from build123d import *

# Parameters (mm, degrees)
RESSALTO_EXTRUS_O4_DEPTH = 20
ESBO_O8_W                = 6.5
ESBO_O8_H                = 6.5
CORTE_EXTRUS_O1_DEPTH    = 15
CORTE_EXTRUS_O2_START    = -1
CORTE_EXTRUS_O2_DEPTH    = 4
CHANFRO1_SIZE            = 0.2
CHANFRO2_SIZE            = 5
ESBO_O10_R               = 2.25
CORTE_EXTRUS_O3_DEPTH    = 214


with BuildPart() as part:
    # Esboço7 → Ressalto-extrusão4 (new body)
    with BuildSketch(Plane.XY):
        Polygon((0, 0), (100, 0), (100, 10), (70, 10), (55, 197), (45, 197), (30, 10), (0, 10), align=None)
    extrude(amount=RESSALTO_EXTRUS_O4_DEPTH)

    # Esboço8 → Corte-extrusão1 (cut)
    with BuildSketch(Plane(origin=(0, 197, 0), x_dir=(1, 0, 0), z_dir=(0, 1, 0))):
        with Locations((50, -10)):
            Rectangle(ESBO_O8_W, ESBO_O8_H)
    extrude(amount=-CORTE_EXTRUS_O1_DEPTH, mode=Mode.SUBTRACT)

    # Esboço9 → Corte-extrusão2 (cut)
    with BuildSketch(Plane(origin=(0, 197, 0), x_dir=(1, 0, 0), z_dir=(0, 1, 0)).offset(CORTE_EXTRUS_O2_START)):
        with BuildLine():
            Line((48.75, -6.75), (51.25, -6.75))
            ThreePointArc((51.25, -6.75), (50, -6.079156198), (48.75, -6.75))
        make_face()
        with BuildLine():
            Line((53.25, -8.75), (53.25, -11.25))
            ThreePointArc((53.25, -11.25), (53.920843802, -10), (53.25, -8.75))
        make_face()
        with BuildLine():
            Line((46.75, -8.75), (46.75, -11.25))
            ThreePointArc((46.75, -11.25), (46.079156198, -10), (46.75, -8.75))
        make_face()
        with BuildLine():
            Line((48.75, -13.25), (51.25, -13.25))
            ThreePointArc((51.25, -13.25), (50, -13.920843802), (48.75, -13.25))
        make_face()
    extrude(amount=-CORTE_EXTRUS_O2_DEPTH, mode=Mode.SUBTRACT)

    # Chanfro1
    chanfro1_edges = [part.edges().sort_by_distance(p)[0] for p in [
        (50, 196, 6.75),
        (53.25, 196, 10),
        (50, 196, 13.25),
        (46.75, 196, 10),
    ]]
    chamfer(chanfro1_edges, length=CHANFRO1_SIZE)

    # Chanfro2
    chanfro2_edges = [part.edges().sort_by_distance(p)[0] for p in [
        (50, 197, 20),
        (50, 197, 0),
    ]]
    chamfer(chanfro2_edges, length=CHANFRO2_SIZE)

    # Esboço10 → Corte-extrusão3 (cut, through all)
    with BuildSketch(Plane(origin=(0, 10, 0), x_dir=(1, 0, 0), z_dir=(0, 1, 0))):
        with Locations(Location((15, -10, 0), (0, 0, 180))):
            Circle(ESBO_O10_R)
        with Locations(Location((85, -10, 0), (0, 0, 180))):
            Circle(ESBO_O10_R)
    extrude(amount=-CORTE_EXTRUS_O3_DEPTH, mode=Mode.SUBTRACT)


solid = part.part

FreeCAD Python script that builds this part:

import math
import FreeCAD as App
import Part
import Sketcher
from FreeCAD import Vector


def edges_at(feature, points):
    """Names of the edges that pass closest to the given points."""
    edges = feature.Shape.Edges
    near = lambda p: min(range(len(edges)), key=lambda i: edges[i].distToShape(Part.Vertex(*p))[0])
    return sorted({f"Edge{near(p) + 1}" for p in points})

doc = App.newDocument("Part")
body = doc.addObject("PartDesign::Body", "Body")

# Sketch on XY plane
sketch1 = doc.addObject("Sketcher::SketchObject", "Sketch")
body.addObject(sketch1)
sketch1.AttachmentSupport = (doc.XY_Plane, [""])
sketch1.MapMode = "FlatFace"
sketch1.addGeometry([
    Part.LineSegment(Vector(0, 0, 0), Vector(100, 0, 0)),  # 0
    Part.LineSegment(Vector(100, 0, 0), Vector(100, 10, 0)),  # 1
    Part.LineSegment(Vector(100, 10, 0), Vector(70, 10, 0)),  # 2
    Part.LineSegment(Vector(70, 10, 0), Vector(55, 197, 0)),  # 3
    Part.LineSegment(Vector(55, 197, 0), Vector(45, 197, 0)),  # 4
    Part.LineSegment(Vector(45, 197, 0), Vector(30, 10, 0)),  # 5
    Part.LineSegment(Vector(30, 10, 0), Vector(0, 10, 0)),  # 6
    Part.LineSegment(Vector(0, 10, 0), Vector(0, 0, 0)),  # 7
], False)
sketch1.addConstraint([
    Sketcher.Constraint("Coincident", 0, 2, 1, 1),
    Sketcher.Constraint("Coincident", 1, 2, 2, 1),
    Sketcher.Constraint("Coincident", 2, 2, 3, 1),
    Sketcher.Constraint("Coincident", 3, 2, 4, 1),
    Sketcher.Constraint("Coincident", 4, 2, 5, 1),
    Sketcher.Constraint("Coincident", 5, 2, 6, 1),
    Sketcher.Constraint("Coincident", 6, 2, 7, 1),
    Sketcher.Constraint("Coincident", 7, 2, 0, 1),
    Sketcher.Constraint("Horizontal", 0),
    Sketcher.Constraint("Vertical", 1),
    Sketcher.Constraint("Horizontal", 2),
    Sketcher.Constraint("Horizontal", 4),
    Sketcher.Constraint("Horizontal", 6),
    Sketcher.Constraint("Vertical", 7),
    Sketcher.Constraint("Coincident", 7, 2, -1, 1),
    Sketcher.Constraint("Horizontal", 2, 2, 5, 2),
    Sketcher.Constraint("Equal", 2, 6),
    Sketcher.Constraint("Equal", 4, 1),
    Sketcher.Constraint("Equal", 3, 5),
    Sketcher.Constraint("DistanceX", 0, 1, 0, 2, 100.0),
    Sketcher.Constraint("DistanceX", 2, 2, 2, 1, 30.0),
    Sketcher.Constraint("DistanceX", 4, 2, 4, 1, 10.0),
    Sketcher.Constraint("DistanceY", -1, 1, 3, 2, 197.0),
])
pad1 = doc.addObject("PartDesign::Pad", "Pad")
body.addObject(pad1)
pad1.Profile = sketch1
pad1.Length = 20

# Sketch on XZ plane
sketch2 = doc.addObject("Sketcher::SketchObject", "Sketch001")
body.addObject(sketch2)
sketch2.AttachmentSupport = (doc.XZ_Plane, [""])
sketch2.MapMode = "FlatFace"
sketch2.AttachmentOffset = App.Placement(Vector(0, 0, -197), App.Rotation())
sketch2.addGeometry([
    Part.LineSegment(Vector(47, 7, 0), Vector(47, 13, 0)),
    Part.LineSegment(Vector(47, 13, 0), Vector(53, 13, 0)),
    Part.LineSegment(Vector(53, 13, 0), Vector(53, 7, 0)),
    Part.LineSegment(Vector(53, 7, 0), Vector(47, 7, 0)),
], False)
sketch2.addConstraint([
    Sketcher.Constraint("Coincident", 0, 2, 1, 1),
    Sketcher.Constraint("Coincident", 1, 2, 2, 1),
    Sketcher.Constraint("Coincident", 2, 2, 3, 1),
    Sketcher.Constraint("Coincident", 3, 2, 0, 1),
    Sketcher.Constraint("Vertical", 0),
    Sketcher.Constraint("Horizontal", 1),
    Sketcher.Constraint("Vertical", 2),
    Sketcher.Constraint("Horizontal", 3),
    Sketcher.Constraint("Equal", 3, 0),
    Sketcher.Constraint("DistanceX", 1, 1, 1, 2, 6.5),
    Sketcher.Constraint("DistanceX", -1, 1, 0, 2, 46.75),
    Sketcher.Constraint("DistanceY", -1, 1, 0, 2, 13.25),
])
pocket1 = doc.addObject("PartDesign::Pocket", "Pocket")
body.addObject(pocket1)
pocket1.Profile = sketch2
pocket1.Length = 15
pocket1.Reversed = True

# Sketch on XZ plane
sketch3 = doc.addObject("Sketcher::SketchObject", "Sketch002")
body.addObject(sketch3)
sketch3.AttachmentSupport = (doc.XZ_Plane, [""])
sketch3.MapMode = "FlatFace"
sketch3.AttachmentOffset = App.Placement(Vector(0, 0, -196), App.Rotation())
sketch3.addGeometry([
    Part.LineSegment(Vector(48.8, 6.8, 0), Vector(51.2, 6.8, 0)),  # 0
    Part.ArcOfCircle(Part.Circle(Vector(50, 7.6, 0), Vector(0, 0, 1), 1.5), math.radians(-146), math.radians(-34)),  # 1
    Part.LineSegment(Vector(53.2, 8.8, 0), Vector(53.2, 11.2, 0)),  # 2
    Part.ArcOfCircle(Part.Circle(Vector(52.4, 10, 0), Vector(0, 0, 1), 1.5), math.radians(-56), math.radians(56)),  # 3
    Part.LineSegment(Vector(46.8, 11.2, 0), Vector(46.8, 8.8, 0)),  # 4
    Part.ArcOfCircle(Part.Circle(Vector(47.6, 10, 0), Vector(0, 0, 1), 1.5), math.radians(124), math.radians(236)),  # 5
    Part.LineSegment(Vector(51.2, 13.2, 0), Vector(48.8, 13.2, 0)),  # 6
    Part.ArcOfCircle(Part.Circle(Vector(50, 12.4, 0), Vector(0, 0, 1), 1.5), math.radians(34), math.radians(146)),  # 7
], False)
sketch3.addConstraint([
    Sketcher.Constraint("Coincident", 0, 1, 1, 1),
    Sketcher.Constraint("Coincident", 1, 2, 0, 2),
    Sketcher.Constraint("Coincident", 2, 1, 3, 1),
    Sketcher.Constraint("Coincident", 3, 2, 2, 2),
    Sketcher.Constraint("Coincident", 4, 1, 5, 1),
    Sketcher.Constraint("Coincident", 5, 2, 4, 2),
    Sketcher.Constraint("Coincident", 6, 1, 7, 1),
    Sketcher.Constraint("Coincident", 7, 2, 6, 2),
    Sketcher.Constraint("Horizontal", 0),
    Sketcher.Constraint("Vertical", 2),
    Sketcher.Constraint("Vertical", 4),
    Sketcher.Constraint("Horizontal", 6),
    Sketcher.Constraint("Equal", 1, 3),
    Sketcher.Constraint("Equal", 3, 5),
    Sketcher.Constraint("Equal", 5, 7),
    Sketcher.Constraint("Horizontal", 3, 3, 5, 3),
    Sketcher.Constraint("Horizontal", 3, 2, 4, 1),
    Sketcher.Constraint("Vertical", 1, 3, 7, 3),
    Sketcher.Constraint("Vertical", 1, 2, 6, 1),
    Sketcher.Constraint("Equal", 6, 2),
    Sketcher.Constraint("Radius", 1, 1.5),
    Sketcher.Constraint("DistanceX", 0, 1, 0, 2, 2.5),
    Sketcher.Constraint("DistanceX", -1, 1, 1, 3, 50.0),
    Sketcher.Constraint("DistanceY", -1, 1, 3, 3, 10.0),
    Sketcher.Constraint("DistanceX", 1, 2, 2, 1, 2.0),
    Sketcher.Constraint("DistanceY", 1, 2, 2, 1, 2.0),
    Sketcher.Constraint("DistanceX", 4, 1, 0, 1, 2.0),
    Sketcher.Constraint("DistanceY", 3, 2, 6, 1, 2.0),
])
pocket2 = doc.addObject("PartDesign::Pocket", "Pocket001")
body.addObject(pocket2)
pocket2.Profile = sketch3
pocket2.Length = 4
pocket2.Reversed = True
doc.recompute()

chamfer = doc.addObject("PartDesign::Chamfer", "Chamfer")
body.addObject(chamfer)
chamfer.Base = (pocket2, edges_at(pocket2, [
    (50, 196, 6.75),
    (53.25, 196, 10),
    (50, 196, 13.25),
    (46.75, 196, 10),
]))
chamfer.Size = 0.2
doc.recompute()

chamfer2 = doc.addObject("PartDesign::Chamfer", "Chamfer001")
body.addObject(chamfer2)
chamfer2.Base = (chamfer, edges_at(chamfer, [(50, 197, 20), (50, 197, 0)]))
chamfer2.Size = 5

# Sketch on XZ plane
sketch4 = doc.addObject("Sketcher::SketchObject", "Sketch003")
body.addObject(sketch4)
sketch4.AttachmentSupport = (doc.XZ_Plane, [""])
sketch4.MapMode = "FlatFace"
sketch4.AttachmentOffset = App.Placement(Vector(0, 0, -10), App.Rotation())
sketch4.addGeometry([
    Part.Circle(Vector(15, 10, 0), Vector(0, 0, 1), 2.2),
    Part.Circle(Vector(85, 10, 0), Vector(0, 0, 1), 2.2),
], False)
sketch4.addConstraint([
    Sketcher.Constraint("Equal", 0, 1),
    Sketcher.Constraint("Horizontal", 0, 3, 1, 3),
    Sketcher.Constraint("Diameter", 0, 4.5),
    Sketcher.Constraint("DistanceX", -1, 1, 0, 3, 15.0),
    Sketcher.Constraint("DistanceY", -1, 1, 0, 3, 10.0),
    Sketcher.Constraint("DistanceX", -1, 1, 1, 3, 85.0),
])
pocket3 = doc.addObject("PartDesign::Pocket", "Pocket002")
body.addObject(pocket3)
pocket3.Profile = sketch4
pocket3.Type = "ThroughAll"
pocket3.Reversed = True

doc.recompute()
